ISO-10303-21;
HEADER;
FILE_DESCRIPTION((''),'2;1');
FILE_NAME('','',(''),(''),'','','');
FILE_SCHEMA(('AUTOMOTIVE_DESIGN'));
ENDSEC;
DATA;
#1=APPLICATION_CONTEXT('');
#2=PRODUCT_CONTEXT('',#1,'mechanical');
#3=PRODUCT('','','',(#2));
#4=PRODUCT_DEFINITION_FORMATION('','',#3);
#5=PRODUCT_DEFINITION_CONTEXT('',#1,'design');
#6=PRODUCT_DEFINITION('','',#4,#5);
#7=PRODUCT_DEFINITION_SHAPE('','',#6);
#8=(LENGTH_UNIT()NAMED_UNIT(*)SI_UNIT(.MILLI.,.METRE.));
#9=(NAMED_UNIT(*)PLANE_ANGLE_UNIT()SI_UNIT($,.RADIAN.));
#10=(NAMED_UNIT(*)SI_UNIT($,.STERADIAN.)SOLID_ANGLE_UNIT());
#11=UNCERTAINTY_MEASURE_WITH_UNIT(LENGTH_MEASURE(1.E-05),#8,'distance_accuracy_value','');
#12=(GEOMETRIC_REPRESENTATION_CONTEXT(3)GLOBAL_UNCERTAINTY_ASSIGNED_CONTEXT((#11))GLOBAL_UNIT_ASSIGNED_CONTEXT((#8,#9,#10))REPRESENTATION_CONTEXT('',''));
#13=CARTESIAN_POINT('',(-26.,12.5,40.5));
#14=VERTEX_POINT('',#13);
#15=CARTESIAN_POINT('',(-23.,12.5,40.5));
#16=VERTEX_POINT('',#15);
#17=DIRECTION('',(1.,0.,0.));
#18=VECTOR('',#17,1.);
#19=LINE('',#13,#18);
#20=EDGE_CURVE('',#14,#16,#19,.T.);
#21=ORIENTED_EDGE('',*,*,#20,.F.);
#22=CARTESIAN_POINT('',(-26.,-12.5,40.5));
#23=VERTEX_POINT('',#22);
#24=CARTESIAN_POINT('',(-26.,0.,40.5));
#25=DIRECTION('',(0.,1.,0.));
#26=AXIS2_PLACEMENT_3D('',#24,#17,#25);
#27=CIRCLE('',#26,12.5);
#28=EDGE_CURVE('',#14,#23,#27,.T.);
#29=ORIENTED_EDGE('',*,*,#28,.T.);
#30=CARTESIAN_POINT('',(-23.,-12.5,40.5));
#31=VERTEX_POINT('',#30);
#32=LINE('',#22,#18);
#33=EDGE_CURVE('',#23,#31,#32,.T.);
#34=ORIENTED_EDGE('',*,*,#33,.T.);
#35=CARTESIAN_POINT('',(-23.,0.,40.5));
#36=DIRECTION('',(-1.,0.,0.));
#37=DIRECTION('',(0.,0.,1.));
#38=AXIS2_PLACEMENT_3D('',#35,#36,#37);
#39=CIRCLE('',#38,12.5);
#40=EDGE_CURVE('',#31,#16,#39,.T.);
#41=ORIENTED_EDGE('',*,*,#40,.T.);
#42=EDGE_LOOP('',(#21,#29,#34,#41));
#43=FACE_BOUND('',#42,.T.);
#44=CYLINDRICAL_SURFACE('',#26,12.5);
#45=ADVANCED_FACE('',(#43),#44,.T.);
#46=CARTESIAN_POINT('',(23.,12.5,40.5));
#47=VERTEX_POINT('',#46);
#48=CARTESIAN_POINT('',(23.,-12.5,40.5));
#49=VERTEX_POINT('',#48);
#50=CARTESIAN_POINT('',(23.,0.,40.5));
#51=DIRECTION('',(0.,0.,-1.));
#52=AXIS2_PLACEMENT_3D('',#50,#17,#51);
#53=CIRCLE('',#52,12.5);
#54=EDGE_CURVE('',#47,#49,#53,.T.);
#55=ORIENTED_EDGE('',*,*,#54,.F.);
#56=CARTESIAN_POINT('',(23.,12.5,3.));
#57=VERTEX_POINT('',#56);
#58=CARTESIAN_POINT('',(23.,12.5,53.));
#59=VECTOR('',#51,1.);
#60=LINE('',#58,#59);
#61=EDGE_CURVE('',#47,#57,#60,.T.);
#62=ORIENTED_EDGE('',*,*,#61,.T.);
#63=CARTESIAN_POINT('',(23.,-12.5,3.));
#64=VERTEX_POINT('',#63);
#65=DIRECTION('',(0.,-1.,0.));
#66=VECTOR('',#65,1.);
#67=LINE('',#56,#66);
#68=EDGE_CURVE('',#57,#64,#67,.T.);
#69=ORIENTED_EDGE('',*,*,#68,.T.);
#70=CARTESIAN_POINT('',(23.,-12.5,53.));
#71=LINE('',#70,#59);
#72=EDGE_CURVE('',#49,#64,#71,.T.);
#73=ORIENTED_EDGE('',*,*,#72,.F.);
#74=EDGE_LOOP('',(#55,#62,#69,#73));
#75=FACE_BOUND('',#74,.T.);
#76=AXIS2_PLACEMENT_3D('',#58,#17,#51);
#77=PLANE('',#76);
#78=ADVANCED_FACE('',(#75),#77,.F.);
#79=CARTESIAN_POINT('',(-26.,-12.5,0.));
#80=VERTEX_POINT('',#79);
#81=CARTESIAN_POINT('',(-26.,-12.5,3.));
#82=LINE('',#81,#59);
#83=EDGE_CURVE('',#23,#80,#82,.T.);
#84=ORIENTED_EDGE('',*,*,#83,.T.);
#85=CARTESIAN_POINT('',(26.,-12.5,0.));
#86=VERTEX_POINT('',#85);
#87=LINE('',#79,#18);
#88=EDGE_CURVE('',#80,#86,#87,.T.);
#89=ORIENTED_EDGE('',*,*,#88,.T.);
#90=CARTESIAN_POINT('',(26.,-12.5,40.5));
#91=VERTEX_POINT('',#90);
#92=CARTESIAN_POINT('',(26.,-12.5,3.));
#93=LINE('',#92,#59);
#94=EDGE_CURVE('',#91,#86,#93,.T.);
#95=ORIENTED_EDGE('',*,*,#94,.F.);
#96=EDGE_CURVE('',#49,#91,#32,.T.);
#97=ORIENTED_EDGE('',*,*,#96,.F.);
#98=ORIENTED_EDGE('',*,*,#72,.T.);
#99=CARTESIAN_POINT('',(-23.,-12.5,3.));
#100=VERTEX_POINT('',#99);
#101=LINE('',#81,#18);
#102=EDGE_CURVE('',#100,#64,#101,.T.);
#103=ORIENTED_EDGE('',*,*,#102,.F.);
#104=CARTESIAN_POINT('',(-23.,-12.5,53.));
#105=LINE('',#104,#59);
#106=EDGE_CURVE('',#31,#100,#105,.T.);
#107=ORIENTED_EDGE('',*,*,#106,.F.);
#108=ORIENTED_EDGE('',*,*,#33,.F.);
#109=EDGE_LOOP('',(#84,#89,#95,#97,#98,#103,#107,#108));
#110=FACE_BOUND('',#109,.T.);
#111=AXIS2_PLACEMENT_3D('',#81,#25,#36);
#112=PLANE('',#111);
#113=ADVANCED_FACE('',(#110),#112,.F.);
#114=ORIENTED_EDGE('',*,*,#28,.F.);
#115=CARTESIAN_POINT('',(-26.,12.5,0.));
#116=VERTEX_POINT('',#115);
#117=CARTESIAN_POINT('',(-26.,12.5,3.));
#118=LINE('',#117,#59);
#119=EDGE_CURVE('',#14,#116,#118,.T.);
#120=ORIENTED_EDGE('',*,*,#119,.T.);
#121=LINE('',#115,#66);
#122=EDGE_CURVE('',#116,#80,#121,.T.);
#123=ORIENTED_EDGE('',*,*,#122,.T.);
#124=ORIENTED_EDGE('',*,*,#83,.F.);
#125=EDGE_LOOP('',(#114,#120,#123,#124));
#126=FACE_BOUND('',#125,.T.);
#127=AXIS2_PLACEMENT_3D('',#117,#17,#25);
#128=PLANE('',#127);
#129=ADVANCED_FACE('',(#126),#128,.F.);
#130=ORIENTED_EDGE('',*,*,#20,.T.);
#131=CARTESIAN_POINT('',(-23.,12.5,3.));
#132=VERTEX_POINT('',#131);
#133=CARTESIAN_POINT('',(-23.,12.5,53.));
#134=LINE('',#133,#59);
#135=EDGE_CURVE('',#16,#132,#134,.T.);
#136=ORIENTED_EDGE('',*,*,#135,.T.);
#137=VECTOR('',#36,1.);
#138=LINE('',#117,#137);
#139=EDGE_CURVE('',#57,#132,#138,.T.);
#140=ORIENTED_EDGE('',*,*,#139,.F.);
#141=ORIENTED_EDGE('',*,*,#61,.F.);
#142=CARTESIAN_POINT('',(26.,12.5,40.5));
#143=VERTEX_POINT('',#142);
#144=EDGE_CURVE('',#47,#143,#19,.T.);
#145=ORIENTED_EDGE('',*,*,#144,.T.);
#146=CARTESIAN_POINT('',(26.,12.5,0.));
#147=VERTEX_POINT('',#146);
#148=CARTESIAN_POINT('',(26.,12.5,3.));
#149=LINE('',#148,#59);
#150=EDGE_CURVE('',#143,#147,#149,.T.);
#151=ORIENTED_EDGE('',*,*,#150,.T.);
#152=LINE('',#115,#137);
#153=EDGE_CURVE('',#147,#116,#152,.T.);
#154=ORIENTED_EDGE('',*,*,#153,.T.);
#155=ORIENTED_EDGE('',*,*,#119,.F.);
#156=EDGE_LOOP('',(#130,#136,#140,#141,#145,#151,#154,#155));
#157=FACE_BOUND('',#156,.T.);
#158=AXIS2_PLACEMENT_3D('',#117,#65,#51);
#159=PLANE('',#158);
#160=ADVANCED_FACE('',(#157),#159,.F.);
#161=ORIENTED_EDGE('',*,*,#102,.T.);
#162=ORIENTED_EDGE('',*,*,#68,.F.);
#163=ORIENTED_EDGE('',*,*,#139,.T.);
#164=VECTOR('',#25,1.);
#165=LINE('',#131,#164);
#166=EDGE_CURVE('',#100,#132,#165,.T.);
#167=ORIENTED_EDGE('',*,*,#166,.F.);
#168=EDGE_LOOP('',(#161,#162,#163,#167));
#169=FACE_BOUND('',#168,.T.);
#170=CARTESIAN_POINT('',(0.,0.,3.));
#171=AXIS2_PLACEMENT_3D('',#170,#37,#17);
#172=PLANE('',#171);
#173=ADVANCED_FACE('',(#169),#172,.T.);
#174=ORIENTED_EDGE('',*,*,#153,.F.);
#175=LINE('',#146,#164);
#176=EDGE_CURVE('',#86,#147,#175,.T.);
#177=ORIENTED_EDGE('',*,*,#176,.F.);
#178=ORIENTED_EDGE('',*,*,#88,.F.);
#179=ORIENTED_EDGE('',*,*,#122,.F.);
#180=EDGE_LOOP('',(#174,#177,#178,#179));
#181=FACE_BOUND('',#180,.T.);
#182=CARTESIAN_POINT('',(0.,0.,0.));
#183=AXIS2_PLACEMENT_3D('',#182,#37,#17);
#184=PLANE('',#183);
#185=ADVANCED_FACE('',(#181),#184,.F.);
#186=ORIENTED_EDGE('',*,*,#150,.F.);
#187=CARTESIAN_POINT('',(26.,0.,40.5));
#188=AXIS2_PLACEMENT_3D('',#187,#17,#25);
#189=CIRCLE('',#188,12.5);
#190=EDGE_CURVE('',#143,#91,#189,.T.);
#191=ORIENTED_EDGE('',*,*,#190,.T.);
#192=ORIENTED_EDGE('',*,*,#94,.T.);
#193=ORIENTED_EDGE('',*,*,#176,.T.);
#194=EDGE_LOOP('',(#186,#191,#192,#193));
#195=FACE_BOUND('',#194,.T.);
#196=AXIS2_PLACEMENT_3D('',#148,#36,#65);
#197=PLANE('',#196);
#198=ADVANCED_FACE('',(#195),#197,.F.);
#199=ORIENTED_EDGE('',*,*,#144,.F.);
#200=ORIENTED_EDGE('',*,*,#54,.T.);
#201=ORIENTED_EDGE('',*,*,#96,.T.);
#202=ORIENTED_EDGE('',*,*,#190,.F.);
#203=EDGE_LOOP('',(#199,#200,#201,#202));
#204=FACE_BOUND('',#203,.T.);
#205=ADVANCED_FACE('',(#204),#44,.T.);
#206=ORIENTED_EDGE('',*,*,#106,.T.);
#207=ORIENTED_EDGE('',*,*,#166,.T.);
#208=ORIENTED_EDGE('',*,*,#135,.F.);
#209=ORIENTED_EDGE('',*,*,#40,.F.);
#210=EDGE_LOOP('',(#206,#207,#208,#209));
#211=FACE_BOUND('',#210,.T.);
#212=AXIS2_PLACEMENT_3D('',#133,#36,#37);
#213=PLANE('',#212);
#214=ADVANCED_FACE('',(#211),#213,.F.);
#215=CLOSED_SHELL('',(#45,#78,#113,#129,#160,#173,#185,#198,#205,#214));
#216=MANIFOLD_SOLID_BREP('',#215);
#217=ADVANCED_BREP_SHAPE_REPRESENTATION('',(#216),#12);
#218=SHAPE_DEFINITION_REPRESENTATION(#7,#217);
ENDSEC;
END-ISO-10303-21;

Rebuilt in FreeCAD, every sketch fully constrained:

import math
import FreeCAD as App
import Part
import Sketcher

V = App.Vector
Q = App.Units.Quantity

doc = App.newDocument("Part")
body = doc.addObject("PartDesign::Body", "Body")

sketch1 = doc.addObject("Sketcher::SketchObject", "Sketch")
body.addObject(sketch1)
sketch1.AttachmentSupport = (doc.XY_Plane, [""])
sketch1.MapMode = "FlatFace"
sketch1.addGeometry([
    Part.LineSegment(V(-26, 12.5, 0), V(-26, -12.5, 0)),
    Part.LineSegment(V(-26, -12.5, 0), V(26, -12.5, 0)),
    Part.LineSegment(V(26, -12.5, 0), V(26, 12.5, 0)),
    Part.LineSegment(V(26, 12.5, 0), V(-26, 12.5, 0)),
], False)
sketch1.addConstraint([
    Sketcher.Constraint("Coincident", 0, 2, 1, 1),
    Sketcher.Constraint("Coincident", 1, 2, 2, 1),
    Sketcher.Constraint("Coincident", 2, 2, 3, 1),
    Sketcher.Constraint("Coincident", 3, 2, 0, 1),
    Sketcher.Constraint("Vertical", 0),
    Sketcher.Constraint("Horizontal", 1),
    Sketcher.Constraint("Vertical", 2),
    Sketcher.Constraint("Horizontal", 3),
    Sketcher.Constraint("Symmetric", 0, 2, 2, 2, -1, 1),
    Sketcher.Constraint("DistanceX", 1, 1, 1, 2, Q("52 mm")),
    Sketcher.Constraint("DistanceY", 0, 2, 0, 1, Q("25 mm")),
])
pad1 = doc.addObject("PartDesign::Pad", "Pad")
body.addObject(pad1)
pad1.Profile = sketch1
pad1.Length = 3

sketch2 = doc.addObject("Sketcher::SketchObject", "Sketch001")
body.addObject(sketch2)
sketch2.AttachmentSupport = (doc.XY_Plane, [""])
sketch2.MapMode = "FlatFace"
sketch2.AttachmentOffset = App.Placement(V(0, 0, 3), App.Rotation())
sketch2.addGeometry([
    Part.LineSegment(V(-26, 12.5, 0), V(-26, -12.5, 0)),
    Part.LineSegment(V(-26, -12.5, 0), V(-23, -12.5, 0)),
    Part.LineSegment(V(-23, -12.5, 0), V(-23, 12.5, 0)),
    Part.LineSegment(V(-23, 12.5, 0), V(-26, 12.5, 0)),
    Part.LineSegment(V(23, 12.5, 0), V(23, -12.5, 0)),
    Part.LineSegment(V(23, -12.5, 0), V(26, -12.5, 0)),
    Part.LineSegment(V(26, -12.5, 0), V(26, 12.5, 0)),
    Part.LineSegment(V(26, 12.5, 0), V(23, 12.5, 0)),
], False)
sketch2.addConstraint([
    Sketcher.Constraint("Coincident", 0, 2, 1, 1),
    Sketcher.Constraint("Coincident", 1, 2, 2, 1),
    Sketcher.Constraint("Coincident", 2, 2, 3, 1),
    Sketcher.Constraint("Coincident", 3, 2, 0, 1),
    Sketcher.Constraint("Coincident", 4, 2, 5, 1),
    Sketcher.Constraint("Coincident", 5, 2, 6, 1),
    Sketcher.Constraint("Coincident", 6, 2, 7, 1),
    Sketcher.Constraint("Coincident", 7, 2, 4, 1),
    Sketcher.Constraint("Vertical", 0),
    Sketcher.Constraint("Horizontal", 1),
    Sketcher.Constraint("Vertical", 2),
    Sketcher.Constraint("Horizontal", 3),
    Sketcher.Constraint("Vertical", 4),
    Sketcher.Constraint("Horizontal", 5),
    Sketcher.Constraint("Vertical", 6),
    Sketcher.Constraint("Horizontal", 7),
    Sketcher.Constraint("Symmetric", 2, 2, 4, 2, -1, 1),
    Sketcher.Constraint("Symmetric", 0, 2, 6, 2, -1, 1),
    Sketcher.Constraint("Horizontal", 1, 2, 4, 2),
    Sketcher.Constraint("DistanceX", 1, 1, 1, 2, Q("3 mm")),
    Sketcher.Constraint("DistanceY", 0, 2, 0, 1, Q("25 mm")),
    Sketcher.Constraint("DistanceX", 0, 2, -1, 1, Q("26 mm")),
])
pad2 = doc.addObject("PartDesign::Pad", "Pad001")
body.addObject(pad2)
pad2.Profile = sketch2
pad2.Length = 50

sketch3 = doc.addObject("Sketcher::SketchObject", "Sketch002")
body.addObject(sketch3)
sketch3.AttachmentSupport = (doc.YZ_Plane, [""])
sketch3.MapMode = "FlatFace"
sketch3.AttachmentOffset = App.Placement(V(0, 0, 26), App.Rotation())
sketch3.addGeometry([
    Part.ArcOfCircle(Part.Circle(V(0, 40.5, 0), V(0, 0, 1), 12.5), math.radians(0), math.radians(89.999999)),
    Part.LineSegment(V(12.5, 40.5, 0), V(12.5, 53, 0)),
    Part.LineSegment(V(12.5, 53, 0), V(0, 53, 0)),
    Part.LineSegment(V(-12.5, 53, 0), V(-12.5, 40.5, 0)),
    Part.ArcOfCircle(Part.Circle(V(0, 40.5, 0), V(0, 0, 1), 12.5), math.radians(89.999999), math.radians(180)),
    Part.LineSegment(V(0, 53, 0), V(-12.5, 53, 0)),
], False)
sketch3.addConstraint([
    Sketcher.Constraint("Tangent", 0, 1, 1, 1),
    Sketcher.Constraint("Coincident", 1, 2, 2, 1),
    Sketcher.Constraint("Tangent", 2, 2, 0, 2),
    Sketcher.Constraint("Tangent", 3, 2, 4, 2),
    Sketcher.Constraint("Tangent", 4, 1, 5, 1),
    Sketcher.Constraint("Coincident", 5, 2, 3, 1),
    Sketcher.Constraint("Vertical", 1),
    Sketcher.Constraint("Horizontal", 2),
    Sketcher.Constraint("Vertical", 3),
    Sketcher.Constraint("Horizontal", 5),
    Sketcher.Constraint("Coincident", 4, 3, 0, 3),
    Sketcher.Constraint("Equal", 0, 4),
    Sketcher.Constraint("PointOnObject", 0, 3, -2),
    Sketcher.Constraint("Radius", 0, Q("12.5 mm")),
    Sketcher.Constraint("DistanceY", -1, 1, 1, 2, Q("53 mm")),
])
pocket1 = doc.addObject("PartDesign::Pocket", "Pocket")
body.addObject(pocket1)
pocket1.Profile = sketch3
pocket1.Type = "ThroughAll"

doc.recompute()
